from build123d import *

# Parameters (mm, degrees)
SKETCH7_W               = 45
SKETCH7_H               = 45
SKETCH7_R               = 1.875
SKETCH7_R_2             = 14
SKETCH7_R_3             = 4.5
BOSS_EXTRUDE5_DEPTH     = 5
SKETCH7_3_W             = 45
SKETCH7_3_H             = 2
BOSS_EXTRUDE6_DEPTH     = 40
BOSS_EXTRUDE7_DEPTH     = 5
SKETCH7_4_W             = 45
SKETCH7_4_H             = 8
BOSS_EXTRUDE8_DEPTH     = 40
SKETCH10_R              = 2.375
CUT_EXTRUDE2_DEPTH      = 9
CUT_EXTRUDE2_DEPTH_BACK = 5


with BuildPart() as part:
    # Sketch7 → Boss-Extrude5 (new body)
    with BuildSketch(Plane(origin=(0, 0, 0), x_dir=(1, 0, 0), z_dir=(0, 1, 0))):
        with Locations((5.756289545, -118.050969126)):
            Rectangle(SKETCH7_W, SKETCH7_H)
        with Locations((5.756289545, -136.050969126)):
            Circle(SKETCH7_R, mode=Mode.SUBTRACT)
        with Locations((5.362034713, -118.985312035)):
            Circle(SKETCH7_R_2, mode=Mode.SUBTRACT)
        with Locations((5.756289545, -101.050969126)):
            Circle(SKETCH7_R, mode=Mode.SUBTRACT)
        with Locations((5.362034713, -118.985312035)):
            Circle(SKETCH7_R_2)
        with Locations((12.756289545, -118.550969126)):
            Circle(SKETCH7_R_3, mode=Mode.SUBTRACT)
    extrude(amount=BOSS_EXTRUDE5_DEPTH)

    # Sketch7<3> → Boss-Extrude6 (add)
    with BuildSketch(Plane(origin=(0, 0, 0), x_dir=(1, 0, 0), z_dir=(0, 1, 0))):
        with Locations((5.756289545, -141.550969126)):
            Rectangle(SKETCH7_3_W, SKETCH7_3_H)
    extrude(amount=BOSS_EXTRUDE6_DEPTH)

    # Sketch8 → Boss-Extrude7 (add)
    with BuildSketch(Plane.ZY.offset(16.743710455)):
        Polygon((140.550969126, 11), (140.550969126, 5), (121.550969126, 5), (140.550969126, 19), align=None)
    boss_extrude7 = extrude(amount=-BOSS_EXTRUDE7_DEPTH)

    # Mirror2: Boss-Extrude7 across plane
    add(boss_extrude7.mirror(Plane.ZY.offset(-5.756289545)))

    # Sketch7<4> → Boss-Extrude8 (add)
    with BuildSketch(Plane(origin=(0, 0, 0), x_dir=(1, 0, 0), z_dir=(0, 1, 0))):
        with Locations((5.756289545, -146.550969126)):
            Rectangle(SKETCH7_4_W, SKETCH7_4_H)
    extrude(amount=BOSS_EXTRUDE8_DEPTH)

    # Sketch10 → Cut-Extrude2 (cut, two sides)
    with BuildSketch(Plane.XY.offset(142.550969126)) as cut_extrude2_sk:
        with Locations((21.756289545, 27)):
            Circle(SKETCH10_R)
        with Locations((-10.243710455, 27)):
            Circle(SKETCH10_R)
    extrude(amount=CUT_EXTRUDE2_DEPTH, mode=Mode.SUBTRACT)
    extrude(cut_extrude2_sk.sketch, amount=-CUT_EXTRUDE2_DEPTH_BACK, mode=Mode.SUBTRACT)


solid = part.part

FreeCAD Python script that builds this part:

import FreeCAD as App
import Part
import Sketcher
from FreeCAD import Vector
Q = App.Units.Quantity

doc = App.newDocument("Part")
body = doc.addObject("PartDesign::Body", "Body")

# Sketch on XZ plane
sketch1 = doc.addObject("Sketcher::SketchObject", "Sketch")
body.addObject(sketch1)
sketch1.AttachmentSupport = (doc.XZ_Plane, [""])
sketch1.MapMode = "FlatFace"
sketch1.addGeometry([
    Part.LineSegment(Vector(-16.74371, 95.550969, 0), Vector(-16.74371, 140.550969, 0)),  # 0
    Part.LineSegment(Vector(-16.74371, 140.550969, 0), Vector(28.25629, 140.550969, 0)),  # 1
    Part.LineSegment(Vector(28.25629, 140.550969, 0), Vector(28.25629, 95.550969, 0)),  # 2
    Part.LineSegment(Vector(28.25629, 95.550969, 0), Vector(-16.74371, 95.550969, 0)),  # 3
    Part.Circle(Vector(5.75629, 136.050969, 0), Vector(0, 0, 1), 1.875),  # 4
    Part.Circle(Vector(5.75629, 101.050969, 0), Vector(0, 0, 1), 1.875),  # 5
    Part.Circle(Vector(12.75629, 118.550969, 0), Vector(0, 0, 1), 4.5),  # 6
], False)
sketch1.addConstraint([
    Sketcher.Constraint("Coincident", 0, 2, 1, 1),
    Sketcher.Constraint("Coincident", 1, 2, 2, 1),
    Sketcher.Constraint("Coincident", 2, 2, 3, 1),
    Sketcher.Constraint("Coincident", 3, 2, 0, 1),
    Sketcher.Constraint("Vertical", 0),
    Sketcher.Constraint("Horizontal", 1),
    Sketcher.Constraint("Vertical", 2),
    Sketcher.Constraint("Horizontal", 3),
    Sketcher.Constraint("Equal", 4, 5),
    Sketcher.Constraint("Vertical", 4, 3, 5, 3),
    Sketcher.Constraint("Equal", 3, 0),
    Sketcher.Constraint("Diameter", 6, Q("9 mm")),
    Sketcher.Constraint("Diameter", 4, Q("3.75 mm")),
    Sketcher.Constraint("DistanceX", 1, 1, 1, 2, Q("45 mm")),
    Sketcher.Constraint("DistanceY", 5, 3, 4, 3, Q("35 mm")),
    Sketcher.Constraint("DistanceX", 5, 3, 6, 3, Q("7 mm")),
    Sketcher.Constraint("DistanceY", 6, 3, 0, 2, Q("22 mm")),
    Sketcher.Constraint("DistanceY", 5, 3, 6, 3, Q("17.5 mm")),
    Sketcher.Constraint("DistanceX", 0, 2, 4, 3, Q("22.5 mm")),
    Sketcher.Constraint("DistanceX", -1, 1, 4, 3, Q("5.75629 mm")),
    Sketcher.Constraint("DistanceY", -1, 1, 4, 3, Q("136.050969 mm")),
])
pad1 = doc.addObject("PartDesign::Pad", "Pad")
body.addObject(pad1)
pad1.Profile = sketch1
pad1.Length = 5
pad1.Reversed = True

# Sketch on XZ plane
sketch2 = doc.addObject("Sketcher::SketchObject", "Sketch001")
body.addObject(sketch2)
sketch2.AttachmentSupport = (doc.XZ_Plane, [""])
sketch2.MapMode = "FlatFace"
sketch2.addGeometry([
    Part.LineSegment(Vector(-16.74371, 140.550969, 0), Vector(-16.74371, 142.550969, 0)),
    Part.LineSegment(Vector(-16.74371, 142.550969, 0), Vector(28.25629, 142.550969, 0)),
    Part.LineSegment(Vector(28.25629, 142.550969, 0), Vector(28.25629, 140.550969, 0)),
    Part.LineSegment(Vector(28.25629, 140.550969, 0), Vector(-16.74371, 140.550969, 0)),
], False)
sketch2.addConstraint([
    Sketcher.Constraint("Coincident", 0, 2, 1, 1),
    Sketcher.Constraint("Coincident", 1, 2, 2, 1),
    Sketcher.Constraint("Coincident", 2, 2, 3, 1),
    Sketcher.Constraint("Coincident", 3, 2, 0, 1),
    Sketcher.Constraint("Vertical", 0),
    Sketcher.Constraint("Horizontal", 1),
    Sketcher.Constraint("Vertical", 2),
    Sketcher.Constraint("Horizontal", 3),
    Sketcher.Constraint("DistanceX", 1, 1, 1, 2, Q("45 mm")),
    Sketcher.Constraint("DistanceY", 0, 1, 0, 2, Q("2 mm")),
    Sketcher.Constraint("DistanceX", 0, 2, -1, 1, Q("16.74371 mm")),
    Sketcher.Constraint("DistanceY", -1, 1, 0, 2, Q("142.550969 mm")),
])
pad2 = doc.addObject("PartDesign::Pad", "Pad001")
body.addObject(pad2)
pad2.Profile = sketch2
pad2.Length = 40
pad2.Reversed = True

# Sketch on YZ plane
sketch3 = doc.addObject("Sketcher::SketchObject", "Sketch002")
body.addObject(sketch3)
sketch3.AttachmentSupport = (doc.YZ_Plane, [""])
sketch3.MapMode = "FlatFace"
sketch3.AttachmentOffset = App.Placement(Vector(0, 0, -16.74371), App.Rotation())
sketch3.addGeometry([
    Part.LineSegment(Vector(5, 140.550969, 0), Vector(19, 140.550969, 0)),
    Part.LineSegment(Vector(19, 140.550969, 0), Vector(5, 121.550969, 0)),
    Part.LineSegment(Vector(5, 121.550969, 0), Vector(5, 140.550969, 0)),
], False)
sketch3.addConstraint([
    Sketcher.Constraint("Coincident", 0, 2, 1, 1),
    Sketcher.Constraint("Coincident", 1, 2, 2, 1),
    Sketcher.Constraint("Coincident", 2, 2, 0, 1),
    Sketcher.Constraint("Horizontal", 0),
    Sketcher.Constraint("Vertical", 2),
    Sketcher.Constraint("DistanceX", 0, 1, 0, 2, Q("14 mm")),
    Sketcher.Constraint("DistanceY", 2, 1, 2, 2, Q("19 mm")),
    Sketcher.Constraint("DistanceX", -1, 1, 0, 2, Q("19 mm")),
    Sketcher.Constraint("DistanceY", -1, 1, 0, 2, Q("140.550969 mm")),
])
pad3 = doc.addObject("PartDesign::Pad", "Pad002")
body.addObject(pad3)
pad3.Profile = sketch3
pad3.Length = 5
doc.recompute()

datumplane = doc.addObject("PartDesign::Plane", "DatumPlane")
body.addObject(datumplane)
datumplane.AttachmentSupport = (doc.YZ_Plane, [""])
datumplane.MapMode = "FlatFace"
datumplane.AttachmentOffset = App.Placement(Vector(0, 0, 5.75629), App.Rotation())
mirrored = doc.addObject("PartDesign::Mirrored", "Mirrored")
body.addObject(mirrored)
mirrored.Originals = [pad3]
mirrored.MirrorPlane = (datumplane, [""])
body.Tip = mirrored

# Sketch on XZ plane
sketch4 = doc.addObject("Sketcher::SketchObject", "Sketch003")
body.addObject(sketch4)
sketch4.AttachmentSupport = (doc.XZ_Plane, [""])
sketch4.MapMode = "FlatFace"
sketch4.addGeometry([
    Part.LineSegment(Vector(-16.74371, 142.550969, 0), Vector(-16.74371, 150.550969, 0)),
    Part.LineSegment(Vector(-16.74371, 150.550969, 0), Vector(28.25629, 150.550969, 0)),
    Part.LineSegment(Vector(28.25629, 150.550969, 0), Vector(28.25629, 142.550969, 0)),
    Part.LineSegment(Vector(28.25629, 142.550969, 0), Vector(-16.74371, 142.550969, 0)),
], False)
sketch4.addConstraint([
    Sketcher.Constraint("Coincident", 0, 2, 1, 1),
    Sketcher.Constraint("Coincident", 1, 2, 2, 1),
    Sketcher.Constraint("Coincident", 2, 2, 3, 1),
    Sketcher.Constraint("Coincident", 3, 2, 0, 1),
    Sketcher.Constraint("Vertical", 0),
    Sketcher.Constraint("Horizontal", 1),
    Sketcher.Constraint("Vertical", 2),
    Sketcher.Constraint("Horizontal", 3),
    Sketcher.Constraint("DistanceX", 1, 1, 1, 2, Q("45 mm")),
    Sketcher.Constraint("DistanceY", 0, 1, 0, 2, Q("8 mm")),
    Sketcher.Constraint("DistanceX", 0, 2, -1, 1, Q("16.74371 mm")),
    Sketcher.Constraint("DistanceY", -1, 1, 0, 2, Q("150.550969 mm")),
])
pad4 = doc.addObject("PartDesign::Pad", "Pad003")
body.addObject(pad4)
pad4.Profile = sketch4
pad4.Length = 40
pad4.Reversed = True

# Sketch on XY plane
sketch5 = doc.addObject("Sketcher::SketchObject", "Sketch004")
body.addObject(sketch5)
sketch5.AttachmentSupport = (doc.XY_Plane, [""])
sketch5.MapMode = "FlatFace"
sketch5.AttachmentOffset = App.Placement(Vector(0, 0, 142.550969), App.Rotation())
sketch5.addGeometry([
    Part.Circle(Vector(21.75629, 27, 0), Vector(0, 0, 1), 2.375),
    Part.Circle(Vector(-10.24371, 27, 0), Vector(0, 0, 1), 2.375),
], False)
sketch5.addConstraint([
    Sketcher.Constraint("Equal", 0, 1),
    Sketcher.Constraint("Horizontal", 0, 3, 1, 3),
    Sketcher.Constraint("Diameter", 0, Q("4.75 mm")),
    Sketcher.Constraint("DistanceY", -1, 1, 0, 3, Q("27 mm")),
    Sketcher.Constraint("DistanceX", 1, 3, 0, 3, Q("32 mm")),
    Sketcher.Constraint("DistanceX", -1, 1, 0, 3, Q("21.75629 mm")),
])
pocket1 = doc.addObject("PartDesign::Pocket", "Pocket")
body.addObject(pocket1)
pocket1.Profile = sketch5
pocket1.Type = "ThroughAll"
pocket1.Midplane = True

doc.recompute()
